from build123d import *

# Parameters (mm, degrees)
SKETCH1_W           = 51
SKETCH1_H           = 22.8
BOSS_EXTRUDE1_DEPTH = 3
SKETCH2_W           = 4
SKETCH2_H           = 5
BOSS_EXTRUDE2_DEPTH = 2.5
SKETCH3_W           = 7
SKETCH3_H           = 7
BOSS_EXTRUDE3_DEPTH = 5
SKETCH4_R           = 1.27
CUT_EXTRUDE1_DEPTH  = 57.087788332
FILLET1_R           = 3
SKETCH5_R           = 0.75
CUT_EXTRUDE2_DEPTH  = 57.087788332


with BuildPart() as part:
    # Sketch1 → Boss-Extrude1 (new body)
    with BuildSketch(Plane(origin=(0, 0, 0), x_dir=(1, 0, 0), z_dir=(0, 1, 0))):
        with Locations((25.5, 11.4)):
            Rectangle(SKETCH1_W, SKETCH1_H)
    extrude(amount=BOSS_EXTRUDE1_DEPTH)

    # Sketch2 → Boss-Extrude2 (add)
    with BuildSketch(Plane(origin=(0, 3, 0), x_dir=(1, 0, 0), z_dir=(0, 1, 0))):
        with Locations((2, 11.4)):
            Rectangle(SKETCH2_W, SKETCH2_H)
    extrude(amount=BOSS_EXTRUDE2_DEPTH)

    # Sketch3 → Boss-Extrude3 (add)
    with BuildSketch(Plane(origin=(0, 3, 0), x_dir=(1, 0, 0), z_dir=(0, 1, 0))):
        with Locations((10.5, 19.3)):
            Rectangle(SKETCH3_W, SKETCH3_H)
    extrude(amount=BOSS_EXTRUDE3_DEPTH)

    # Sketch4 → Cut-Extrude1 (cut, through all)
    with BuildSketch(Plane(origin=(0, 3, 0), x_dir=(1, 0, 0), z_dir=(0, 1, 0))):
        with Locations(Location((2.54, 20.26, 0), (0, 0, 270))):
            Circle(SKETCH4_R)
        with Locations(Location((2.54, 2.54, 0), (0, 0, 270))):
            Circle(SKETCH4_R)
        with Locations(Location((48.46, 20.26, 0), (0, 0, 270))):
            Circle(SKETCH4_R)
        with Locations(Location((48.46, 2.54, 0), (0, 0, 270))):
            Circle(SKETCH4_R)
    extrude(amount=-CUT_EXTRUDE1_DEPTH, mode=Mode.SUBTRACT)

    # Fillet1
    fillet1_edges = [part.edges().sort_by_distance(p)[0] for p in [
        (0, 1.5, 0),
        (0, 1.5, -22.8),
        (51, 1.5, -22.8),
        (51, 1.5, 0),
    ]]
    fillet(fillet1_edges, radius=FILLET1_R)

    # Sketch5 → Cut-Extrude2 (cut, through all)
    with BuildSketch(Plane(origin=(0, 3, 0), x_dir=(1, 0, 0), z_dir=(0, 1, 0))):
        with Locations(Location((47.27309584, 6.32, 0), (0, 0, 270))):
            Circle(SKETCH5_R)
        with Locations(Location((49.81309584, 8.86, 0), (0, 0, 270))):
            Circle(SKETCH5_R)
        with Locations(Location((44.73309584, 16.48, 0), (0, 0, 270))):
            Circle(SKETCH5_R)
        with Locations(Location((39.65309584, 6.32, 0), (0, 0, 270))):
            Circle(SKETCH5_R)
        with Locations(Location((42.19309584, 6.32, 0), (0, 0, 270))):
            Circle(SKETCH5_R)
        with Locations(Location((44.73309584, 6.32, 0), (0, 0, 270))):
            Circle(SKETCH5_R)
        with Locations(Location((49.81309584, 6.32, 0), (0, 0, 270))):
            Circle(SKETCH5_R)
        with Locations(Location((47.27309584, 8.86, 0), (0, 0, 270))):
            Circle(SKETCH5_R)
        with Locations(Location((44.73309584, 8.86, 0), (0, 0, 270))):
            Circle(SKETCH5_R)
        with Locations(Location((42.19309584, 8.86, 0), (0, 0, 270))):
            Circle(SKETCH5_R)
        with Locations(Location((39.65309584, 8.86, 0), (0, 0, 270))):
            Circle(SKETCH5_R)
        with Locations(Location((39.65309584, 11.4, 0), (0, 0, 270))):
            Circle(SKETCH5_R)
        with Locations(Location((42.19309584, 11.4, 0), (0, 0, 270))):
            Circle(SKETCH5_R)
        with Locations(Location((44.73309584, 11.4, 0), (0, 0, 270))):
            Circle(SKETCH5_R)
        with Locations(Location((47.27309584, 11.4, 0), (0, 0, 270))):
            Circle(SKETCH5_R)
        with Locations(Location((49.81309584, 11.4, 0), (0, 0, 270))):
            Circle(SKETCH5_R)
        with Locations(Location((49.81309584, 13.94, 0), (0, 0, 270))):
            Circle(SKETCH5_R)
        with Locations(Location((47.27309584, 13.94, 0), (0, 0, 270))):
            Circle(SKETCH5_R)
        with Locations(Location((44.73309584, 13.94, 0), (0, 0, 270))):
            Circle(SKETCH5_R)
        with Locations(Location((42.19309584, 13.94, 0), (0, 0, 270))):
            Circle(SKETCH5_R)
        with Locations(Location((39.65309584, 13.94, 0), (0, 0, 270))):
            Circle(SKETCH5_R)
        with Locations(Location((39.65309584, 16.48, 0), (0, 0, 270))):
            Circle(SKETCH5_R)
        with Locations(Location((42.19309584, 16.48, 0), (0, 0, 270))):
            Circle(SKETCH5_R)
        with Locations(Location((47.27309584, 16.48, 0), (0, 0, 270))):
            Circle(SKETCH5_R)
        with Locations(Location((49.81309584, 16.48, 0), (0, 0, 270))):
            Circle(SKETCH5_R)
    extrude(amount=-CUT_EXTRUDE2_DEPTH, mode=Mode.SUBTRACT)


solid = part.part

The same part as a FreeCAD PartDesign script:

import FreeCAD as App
import Part
import Sketcher


def edges_at(feature, points):
    """Names of the edges that pass closest to the given points."""
    edges = feature.Shape.Edges
    near = lambda p: min(range(len(edges)), key=lambda i: edges[i].distToShape(Part.Vertex(*p))[0])
    return sorted({f"Edge{near(p) + 1}" for p in points})

doc = App.newDocument("Part")
body = doc.addObject("PartDesign::Body", "Body")

# Sketch on XZ plane
sketch1 = body.newObject("Sketcher::SketchObject", "Sketch")
sketch1.AttachmentSupport = (doc.getObject("XZ_Plane"), [""])
sketch1.MapMode = "FlatFace"
sketch1.addGeometry(Part.LineSegment(App.Vector(0, -23, 0), App.Vector(0, 0, 0)), False)
sketch1.addGeometry(Part.LineSegment(App.Vector(0, 0, 0), App.Vector(51, 0, 0)), False)
sketch1.addGeometry(Part.LineSegment(App.Vector(51, 0, 0), App.Vector(51, -23, 0)), False)
sketch1.addGeometry(Part.LineSegment(App.Vector(51, -23, 0), App.Vector(0, -23, 0)), False)
sketch1.addConstraint(Sketcher.Constraint("Coincident", 0, 2, 1, 1))
sketch1.addConstraint(Sketcher.Constraint("Coincident", 1, 2, 2, 1))
sketch1.addConstraint(Sketcher.Constraint("Coincident", 2, 2, 3, 1))
sketch1.addConstraint(Sketcher.Constraint("Coincident", 3, 2, 0, 1))
sketch1.addConstraint(Sketcher.Constraint("Vertical", 0))
sketch1.addConstraint(Sketcher.Constraint("Horizontal", 1))
sketch1.addConstraint(Sketcher.Constraint("Vertical", 2))
sketch1.addConstraint(Sketcher.Constraint("Horizontal", 3))
sketch1.addConstraint(Sketcher.Constraint("Coincident", 0, 2, -1, 1))
sketch1.addConstraint(Sketcher.Constraint("DistanceX", 1, 1, 1, 2, 51.0))
sketch1.addConstraint(Sketcher.Constraint("DistanceY", 0, 1, 0, 2, 22.8))
pad1 = body.newObject("PartDesign::Pad", "Pad")
pad1.Profile = sketch1
pad1.Length = 3
pad1.Reversed = True

# Sketch on XZ plane
sketch2 = body.newObject("Sketcher::SketchObject", "Sketch001")
sketch2.AttachmentSupport = (doc.getObject("XZ_Plane"), [""])
sketch2.MapMode = "FlatFace"
sketch2.AttachmentOffset = App.Placement(App.Vector(0, 0, -3), App.Rotation())
sketch2.addGeometry(Part.LineSegment(App.Vector(0, -13.9, 0), App.Vector(0, -8.9, 0)), False)
sketch2.addGeometry(Part.LineSegment(App.Vector(0, -8.9, 0), App.Vector(4, -8.9, 0)), False)
sketch2.addGeometry(Part.LineSegment(App.Vector(4, -8.9, 0), App.Vector(4, -13.9, 0)), False)
sketch2.addGeometry(Part.LineSegment(App.Vector(4, -13.9, 0), App.Vector(0, -13.9, 0)), False)
sketch2.addConstraint(Sketcher.Constraint("Coincident", 0, 2, 1, 1))
sketch2.addConstraint(Sketcher.Constraint("Coincident", 1, 2, 2, 1))
sketch2.addConstraint(Sketcher.Constraint("Coincident", 2, 2, 3, 1))
sketch2.addConstraint(Sketcher.Constraint("Coincident", 3, 2, 0, 1))
sketch2.addConstraint(Sketcher.Constraint("Vertical", 0))
sketch2.addConstraint(Sketcher.Constraint("Horizontal", 1))
sketch2.addConstraint(Sketcher.Constraint("Vertical", 2))
sketch2.addConstraint(Sketcher.Constraint("Horizontal", 3))
sketch2.addConstraint(Sketcher.Constraint("PointOnObject", 0, 2, -2))
sketch2.addConstraint(Sketcher.Constraint("DistanceX", 1, 1, 1, 2, 4.0))
sketch2.addConstraint(Sketcher.Constraint("DistanceY", 0, 1, 0, 2, 5.0))
sketch2.addConstraint(Sketcher.Constraint("DistanceY", 0, 2, -1, 1, 8.9))
pad2 = body.newObject("PartDesign::Pad", "Pad001")
pad2.Profile = sketch2
pad2.Length = 2.5
pad2.Reversed = True

# Sketch on XZ plane
sketch3 = body.newObject("Sketcher::SketchObject", "Sketch002")
sketch3.AttachmentSupport = (doc.getObject("XZ_Plane"), [""])
sketch3.MapMode = "FlatFace"
sketch3.AttachmentOffset = App.Placement(App.Vector(0, 0, -3), App.Rotation())
sketch3.addGeometry(Part.LineSegment(App.Vector(7, -23, 0), App.Vector(7, -16, 0)), False)
sketch3.addGeometry(Part.LineSegment(App.Vector(7, -16, 0), App.Vector(14, -16, 0)), False)
sketch3.addGeometry(Part.LineSegment(App.Vector(14, -16, 0), App.Vector(14, -23, 0)), False)
sketch3.addGeometry(Part.LineSegment(App.Vector(14, -23, 0), App.Vector(7, -23, 0)), False)
sketch3.addConstraint(Sketcher.Constraint("Coincident", 0, 2, 1, 1))
sketch3.addConstraint(Sketcher.Constraint("Coincident", 1, 2, 2, 1))
sketch3.addConstraint(Sketcher.Constraint("Coincident", 2, 2, 3, 1))
sketch3.addConstraint(Sketcher.Constraint("Coincident", 3, 2, 0, 1))
sketch3.addConstraint(Sketcher.Constraint("Vertical", 0))
sketch3.addConstraint(Sketcher.Constraint("Horizontal", 1))
sketch3.addConstraint(Sketcher.Constraint("Vertical", 2))
sketch3.addConstraint(Sketcher.Constraint("Horizontal", 3))
sketch3.addConstraint(Sketcher.Constraint("Equal", 3, 0))
sketch3.addConstraint(Sketcher.Constraint("DistanceX", 1, 1, 1, 2, 7.0))
sketch3.addConstraint(Sketcher.Constraint("DistanceX", -1, 1, 0, 2, 7.0))
sketch3.addConstraint(Sketcher.Constraint("DistanceY", 0, 2, -1, 1, 15.8))
pad3 = body.newObject("PartDesign::Pad", "Pad002")
pad3.Profile = sketch3
pad3.Length = 5
pad3.Reversed = True

# Sketch on XZ plane
sketch4 = body.newObject("Sketcher::SketchObject", "Sketch003")
sketch4.AttachmentSupport = (doc.getObject("XZ_Plane"), [""])
sketch4.MapMode = "FlatFace"
sketch4.AttachmentOffset = App.Placement(App.Vector(0, 0, -3), App.Rotation())
sketch4.addGeometry(Part.Circle(App.Vector(2.5, -20.3, 0), App.Vector(0, 0, 1), 1.3), False)
sketch4.addGeometry(Part.Circle(App.Vector(2.5, -2.5, 0), App.Vector(0, 0, 1), 1.3), False)
sketch4.addGeometry(Part.Circle(App.Vector(48.5, -20.3, 0), App.Vector(0, 0, 1), 1.3), False)
sketch4.addGeometry(Part.Circle(App.Vector(48.5, -2.5, 0), App.Vector(0, 0, 1), 1.3), False)
sketch4.addConstraint(Sketcher.Constraint("Equal", 0, 1))
sketch4.addConstraint(Sketcher.Constraint("Equal", 1, 2))
sketch4.addConstraint(Sketcher.Constraint("Equal", 2, 3))
sketch4.addConstraint(Sketcher.Constraint("Horizontal", 0, 3, 2, 3))
sketch4.addConstraint(Sketcher.Constraint("Horizontal", 1, 3, 3, 3))
sketch4.addConstraint(Sketcher.Constraint("Vertical", 0, 3, 1, 3))
sketch4.addConstraint(Sketcher.Constraint("Vertical", 2, 3, 3, 3))
sketch4.addConstraint(Sketcher.Constraint("Diameter", 0, 2.54))
sketch4.addConstraint(Sketcher.Constraint("DistanceX", -1, 1, 0, 3, 2.54))
sketch4.addConstraint(Sketcher.Constraint("DistanceY", 0, 3, -1, 1, 20.26))
sketch4.addConstraint(Sketcher.Constraint("DistanceY", 1, 3, -1, 1, 2.54))
sketch4.addConstraint(Sketcher.Constraint("DistanceX", -1, 1, 2, 3, 48.46))
pocket1 = body.newObject("PartDesign::Pocket", "Pocket")
pocket1.Profile = sketch4
pocket1.Type = "ThroughAll"
pocket1.Reversed = True
doc.recompute()

fillet = body.newObject("PartDesign::Fillet", "Fillet")
fillet.Base = (pocket1, edges_at(pocket1, [
    (0, 1.5, 0),
    (0, 1.5, -22.8),
    (51, 1.5, -22.8),
    (51, 1.5, 0),
]))
fillet.Radius = 3

# Sketch on XZ plane
sketch5 = body.newObject("Sketcher::SketchObject", "Sketch004")
sketch5.AttachmentSupport = (doc.getObject("XZ_Plane"), [""])
sketch5.MapMode = "FlatFace"
sketch5.AttachmentOffset = App.Placement(App.Vector(0, 0, -3), App.Rotation())
sketch5.addGeometry(Part.Circle(App.Vector(47.3, -6.3, 0), App.Vector(0, 0, 1), 0.8), False)
sketch5.addGeometry(Part.Circle(App.Vector(49.8, -8.9, 0), App.Vector(0, 0, 1), 0.8), False)
sketch5.addGeometry(Part.Circle(App.Vector(44.7, -16.5, 0), App.Vector(0, 0, 1), 0.8), False)
sketch5.addGeometry(Part.Circle(App.Vector(39.7, -6.3, 0), App.Vector(0, 0, 1), 0.8), False)
sketch5.addGeometry(Part.Circle(App.Vector(42.2, -6.3, 0), App.Vector(0, 0, 1), 0.8), False)
sketch5.addGeometry(Part.Circle(App.Vector(44.7, -6.3, 0), App.Vector(0, 0, 1), 0.8), False)
sketch5.addGeometry(Part.Circle(App.Vector(49.8, -6.3, 0), App.Vector(0, 0, 1), 0.8), False)
sketch5.addGeometry(Part.Circle(App.Vector(47.3, -8.9, 0), App.Vector(0, 0, 1), 0.8), False)
sketch5.addGeometry(Part.Circle(App.Vector(44.7, -8.9, 0), App.Vector(0, 0, 1), 0.8), False)
sketch5.addGeometry(Part.Circle(App.Vector(42.2, -8.9, 0), App.Vector(0, 0, 1), 0.8), False)
sketch5.addGeometry(Part.Circle(App.Vector(39.7, -8.9, 0), App.Vector(0, 0, 1), 0.8), False)
sketch5.addGeometry(Part.Circle(App.Vector(39.7, -11.4, 0), App.Vector(0, 0, 1), 0.8), False)
sketch5.addGeometry(Part.Circle(App.Vector(42.2, -11.4, 0), App.Vector(0, 0, 1), 0.8), False)
sketch5.addGeometry(Part.Circle(App.Vector(44.7, -11.4, 0), App.Vector(0, 0, 1), 0.8), False)
sketch5.addGeometry(Part.Circle(App.Vector(47.3, -11.4, 0), App.Vector(0, 0, 1), 0.8), False)
sketch5.addGeometry(Part.Circle(App.Vector(49.8, -11.4, 0), App.Vector(0, 0, 1), 0.8), False)
sketch5.addGeometry(Part.Circle(App.Vector(49.8, -13.9, 0), App.Vector(0, 0, 1), 0.8), False)
sketch5.addGeometry(Part.Circle(App.Vector(47.3, -13.9, 0), App.Vector(0, 0, 1), 0.8), False)
sketch5.addGeometry(Part.Circle(App.Vector(44.7, -13.9, 0), App.Vector(0, 0, 1), 0.8), False)
sketch5.addGeometry(Part.Circle(App.Vector(42.2, -13.9, 0), App.Vector(0, 0, 1), 0.8), False)
sketch5.addGeometry(Part.Circle(App.Vector(39.7, -13.9, 0), App.Vector(0, 0, 1), 0.8), False)
sketch5.addGeometry(Part.Circle(App.Vector(39.7, -16.5, 0), App.Vector(0, 0, 1), 0.8), False)
sketch5.addGeometry(Part.Circle(App.Vector(42.2, -16.5, 0), App.Vector(0, 0, 1), 0.8), False)
sketch5.addGeometry(Part.Circle(App.Vector(47.3, -16.5, 0), App.Vector(0, 0, 1), 0.8), False)
sketch5.addGeometry(Part.Circle(App.Vector(49.8, -16.5, 0), App.Vector(0, 0, 1), 0.8), False)
sketch5.addConstraint(Sketcher.Constraint("Equal", 0, 1))
sketch5.addConstraint(Sketcher.Constraint("Equal", 1, 2))
sketch5.addConstraint(Sketcher.Constraint("Equal", 2, 3))
sketch5.addConstraint(Sketcher.Constraint("Equal", 3, 4))
sketch5.addConstraint(Sketcher.Constraint("Equal", 4, 5))
sketch5.addConstraint(Sketcher.Constraint("Equal", 5, 6))
sketch5.addConstraint(Sketcher.Constraint("Equal", 6, 7))
sketch5.addConstraint(Sketcher.Constraint("Equal", 7, 8))
sketch5.addConstraint(Sketcher.Constraint("Equal", 8, 9))
sketch5.addConstraint(Sketcher.Constraint("Equal", 9, 10))
sketch5.addConstraint(Sketcher.Constraint("Equal", 10, 11))
sketch5.addConstraint(Sketcher.Constraint("Equal", 11, 12))
sketch5.addConstraint(Sketcher.Constraint("Equal", 12, 13))
sketch5.addConstraint(Sketcher.Constraint("Equal", 13, 14))
sketch5.addConstraint(Sketcher.Constraint("Equal", 14, 15))
sketch5.addConstraint(Sketcher.Constraint("Equal", 15, 16))
sketch5.addConstraint(Sketcher.Constraint("Equal", 16, 17))
sketch5.addConstraint(Sketcher.Constraint("Equal", 17, 18))
sketch5.addConstraint(Sketcher.Constraint("Equal", 18, 19))
sketch5.addConstraint(Sketcher.Constraint("Equal", 19, 20))
sketch5.addConstraint(Sketcher.Constraint("Equal", 20, 21))
sketch5.addConstraint(Sketcher.Constraint("Equal", 21, 22))
sketch5.addConstraint(Sketcher.Constraint("Equal", 22, 23))
sketch5.addConstraint(Sketcher.Constraint("Equal", 23, 24))
sketch5.addConstraint(Sketcher.Constraint("Horizontal", 0, 3, 3, 3))
sketch5.addConstraint(Sketcher.Constraint("Horizontal", 3, 3, 4, 3))
sketch5.addConstraint(Sketcher.Constraint("Horizontal", 4, 3, 5, 3))
sketch5.addConstraint(Sketcher.Constraint("Horizontal", 5, 3, 6, 3))
sketch5.addConstraint(Sketcher.Constraint("Horizontal", 1, 3, 7, 3))
sketch5.addConstraint(Sketcher.Constraint("Horizontal", 7, 3, 8, 3))
sketch5.addConstraint(Sketcher.Constraint("Horizontal", 8, 3, 9, 3))
sketch5.addConstraint(Sketcher.Constraint("Horizontal", 9, 3, 10, 3))
sketch5.addConstraint(Sketcher.Constraint("Horizontal", 11, 3, 12, 3))
sketch5.addConstraint(Sketcher.Constraint("Horizontal", 12, 3, 13, 3))
sketch5.addConstraint(Sketcher.Constraint("Horizontal", 13, 3, 14, 3))
sketch5.addConstraint(Sketcher.Constraint("Horizontal", 14, 3, 15, 3))
sketch5.addConstraint(Sketcher.Constraint("Horizontal", 16, 3, 17, 3))
sketch5.addConstraint(Sketcher.Constraint("Horizontal", 17, 3, 18, 3))
sketch5.addConstraint(Sketcher.Constraint("Horizontal", 18, 3, 19, 3))
sketch5.addConstraint(Sketcher.Constraint("Horizontal", 19, 3, 20, 3))
sketch5.addConstraint(Sketcher.Constraint("Horizontal", 2, 3, 21, 3))
sketch5.addConstraint(Sketcher.Constraint("Horizontal", 21, 3, 22, 3))
sketch5.addConstraint(Sketcher.Constraint("Horizontal", 22, 3, 23, 3))
sketch5.addConstraint(Sketcher.Constraint("Horizontal", 23, 3, 24, 3))
sketch5.addConstraint(Sketcher.Constraint("Vertical", 2, 3, 5, 3))
sketch5.addConstraint(Sketcher.Constraint("Vertical", 1, 3, 6, 3))
sketch5.addConstraint(Sketcher.Constraint("Vertical", 0, 3, 7, 3))
sketch5.addConstraint(Sketcher.Constraint("Vertical", 5, 3, 8, 3))
sketch5.addConstraint(Sketcher.Constraint("Vertical", 4, 3, 9, 3))
sketch5.addConstraint(Sketcher.Constraint("Vertical", 3, 3, 10, 3))
sketch5.addConstraint(Sketcher.Constraint("Vertical", 10, 3, 11, 3))
sketch5.addConstraint(Sketcher.Constraint("Vertical", 9, 3, 12, 3))
sketch5.addConstraint(Sketcher.Constraint("Vertical", 8, 3, 13, 3))
sketch5.addConstraint(Sketcher.Constraint("Vertical", 7, 3, 14, 3))
sketch5.addConstraint(Sketcher.Constraint("Vertical", 6, 3, 15, 3))
sketch5.addConstraint(Sketcher.Constraint("Vertical", 15, 3, 16, 3))
sketch5.addConstraint(Sketcher.Constraint("Vertical", 14, 3, 17, 3))
sketch5.addConstraint(Sketcher.Constraint("Vertical", 13, 3, 18, 3))
sketch5.addConstraint(Sketcher.Constraint("Vertical", 12, 3, 19, 3))
sketch5.addConstraint(Sketcher.Constraint("Vertical", 11, 3, 20, 3))
sketch5.addConstraint(Sketcher.Constraint("Vertical", 20, 3, 21, 3))
sketch5.addConstraint(Sketcher.Constraint("Vertical", 19, 3, 22, 3))
sketch5.addConstraint(Sketcher.Constraint("Vertical", 17, 3, 23, 3))
sketch5.addConstraint(Sketcher.Constraint("Vertical", 16, 3, 24, 3))
sketch5.addConstraint(Sketcher.Constraint("Diameter", 0, 1.5))
sketch5.addConstraint(Sketcher.Constraint("DistanceY", 11, 3, -1, 1, 11.4))
sketch5.addConstraint(Sketcher.Constraint("DistanceY", 0, 3, -1, 1, 6.32))
sketch5.addConstraint(Sketcher.Constraint("DistanceY", 1, 3, -1, 1, 8.86))
sketch5.addConstraint(Sketcher.Constraint("DistanceY", 2, 3, -1, 1, 16.48))
sketch5.addConstraint(Sketcher.Constraint("DistanceY", 16, 3, -1, 1, 13.94))
sketch5.addConstraint(Sketcher.Constraint("DistanceX", 0, 3, 1, 3, 2.54))
sketch5.addConstraint(Sketcher.Constraint("DistanceX", 2, 3, 1, 3, 5.08))
sketch5.addConstraint(Sketcher.Constraint("DistanceX", 3, 3, 0, 3, 7.62))
sketch5.addConstraint(Sketcher.Constraint("DistanceX", 3, 3, 4, 3, 2.54))
sketch5.addConstraint(Sketcher.Constraint("DistanceX", -1, 1, 0, 3, 47.273096))
pocket2 = body.newObject("PartDesign::Pocket", "Pocket001")
pocket2.Profile = sketch5
pocket2.Type = "ThroughAll"
pocket2.Reversed = True

doc.recompute()
